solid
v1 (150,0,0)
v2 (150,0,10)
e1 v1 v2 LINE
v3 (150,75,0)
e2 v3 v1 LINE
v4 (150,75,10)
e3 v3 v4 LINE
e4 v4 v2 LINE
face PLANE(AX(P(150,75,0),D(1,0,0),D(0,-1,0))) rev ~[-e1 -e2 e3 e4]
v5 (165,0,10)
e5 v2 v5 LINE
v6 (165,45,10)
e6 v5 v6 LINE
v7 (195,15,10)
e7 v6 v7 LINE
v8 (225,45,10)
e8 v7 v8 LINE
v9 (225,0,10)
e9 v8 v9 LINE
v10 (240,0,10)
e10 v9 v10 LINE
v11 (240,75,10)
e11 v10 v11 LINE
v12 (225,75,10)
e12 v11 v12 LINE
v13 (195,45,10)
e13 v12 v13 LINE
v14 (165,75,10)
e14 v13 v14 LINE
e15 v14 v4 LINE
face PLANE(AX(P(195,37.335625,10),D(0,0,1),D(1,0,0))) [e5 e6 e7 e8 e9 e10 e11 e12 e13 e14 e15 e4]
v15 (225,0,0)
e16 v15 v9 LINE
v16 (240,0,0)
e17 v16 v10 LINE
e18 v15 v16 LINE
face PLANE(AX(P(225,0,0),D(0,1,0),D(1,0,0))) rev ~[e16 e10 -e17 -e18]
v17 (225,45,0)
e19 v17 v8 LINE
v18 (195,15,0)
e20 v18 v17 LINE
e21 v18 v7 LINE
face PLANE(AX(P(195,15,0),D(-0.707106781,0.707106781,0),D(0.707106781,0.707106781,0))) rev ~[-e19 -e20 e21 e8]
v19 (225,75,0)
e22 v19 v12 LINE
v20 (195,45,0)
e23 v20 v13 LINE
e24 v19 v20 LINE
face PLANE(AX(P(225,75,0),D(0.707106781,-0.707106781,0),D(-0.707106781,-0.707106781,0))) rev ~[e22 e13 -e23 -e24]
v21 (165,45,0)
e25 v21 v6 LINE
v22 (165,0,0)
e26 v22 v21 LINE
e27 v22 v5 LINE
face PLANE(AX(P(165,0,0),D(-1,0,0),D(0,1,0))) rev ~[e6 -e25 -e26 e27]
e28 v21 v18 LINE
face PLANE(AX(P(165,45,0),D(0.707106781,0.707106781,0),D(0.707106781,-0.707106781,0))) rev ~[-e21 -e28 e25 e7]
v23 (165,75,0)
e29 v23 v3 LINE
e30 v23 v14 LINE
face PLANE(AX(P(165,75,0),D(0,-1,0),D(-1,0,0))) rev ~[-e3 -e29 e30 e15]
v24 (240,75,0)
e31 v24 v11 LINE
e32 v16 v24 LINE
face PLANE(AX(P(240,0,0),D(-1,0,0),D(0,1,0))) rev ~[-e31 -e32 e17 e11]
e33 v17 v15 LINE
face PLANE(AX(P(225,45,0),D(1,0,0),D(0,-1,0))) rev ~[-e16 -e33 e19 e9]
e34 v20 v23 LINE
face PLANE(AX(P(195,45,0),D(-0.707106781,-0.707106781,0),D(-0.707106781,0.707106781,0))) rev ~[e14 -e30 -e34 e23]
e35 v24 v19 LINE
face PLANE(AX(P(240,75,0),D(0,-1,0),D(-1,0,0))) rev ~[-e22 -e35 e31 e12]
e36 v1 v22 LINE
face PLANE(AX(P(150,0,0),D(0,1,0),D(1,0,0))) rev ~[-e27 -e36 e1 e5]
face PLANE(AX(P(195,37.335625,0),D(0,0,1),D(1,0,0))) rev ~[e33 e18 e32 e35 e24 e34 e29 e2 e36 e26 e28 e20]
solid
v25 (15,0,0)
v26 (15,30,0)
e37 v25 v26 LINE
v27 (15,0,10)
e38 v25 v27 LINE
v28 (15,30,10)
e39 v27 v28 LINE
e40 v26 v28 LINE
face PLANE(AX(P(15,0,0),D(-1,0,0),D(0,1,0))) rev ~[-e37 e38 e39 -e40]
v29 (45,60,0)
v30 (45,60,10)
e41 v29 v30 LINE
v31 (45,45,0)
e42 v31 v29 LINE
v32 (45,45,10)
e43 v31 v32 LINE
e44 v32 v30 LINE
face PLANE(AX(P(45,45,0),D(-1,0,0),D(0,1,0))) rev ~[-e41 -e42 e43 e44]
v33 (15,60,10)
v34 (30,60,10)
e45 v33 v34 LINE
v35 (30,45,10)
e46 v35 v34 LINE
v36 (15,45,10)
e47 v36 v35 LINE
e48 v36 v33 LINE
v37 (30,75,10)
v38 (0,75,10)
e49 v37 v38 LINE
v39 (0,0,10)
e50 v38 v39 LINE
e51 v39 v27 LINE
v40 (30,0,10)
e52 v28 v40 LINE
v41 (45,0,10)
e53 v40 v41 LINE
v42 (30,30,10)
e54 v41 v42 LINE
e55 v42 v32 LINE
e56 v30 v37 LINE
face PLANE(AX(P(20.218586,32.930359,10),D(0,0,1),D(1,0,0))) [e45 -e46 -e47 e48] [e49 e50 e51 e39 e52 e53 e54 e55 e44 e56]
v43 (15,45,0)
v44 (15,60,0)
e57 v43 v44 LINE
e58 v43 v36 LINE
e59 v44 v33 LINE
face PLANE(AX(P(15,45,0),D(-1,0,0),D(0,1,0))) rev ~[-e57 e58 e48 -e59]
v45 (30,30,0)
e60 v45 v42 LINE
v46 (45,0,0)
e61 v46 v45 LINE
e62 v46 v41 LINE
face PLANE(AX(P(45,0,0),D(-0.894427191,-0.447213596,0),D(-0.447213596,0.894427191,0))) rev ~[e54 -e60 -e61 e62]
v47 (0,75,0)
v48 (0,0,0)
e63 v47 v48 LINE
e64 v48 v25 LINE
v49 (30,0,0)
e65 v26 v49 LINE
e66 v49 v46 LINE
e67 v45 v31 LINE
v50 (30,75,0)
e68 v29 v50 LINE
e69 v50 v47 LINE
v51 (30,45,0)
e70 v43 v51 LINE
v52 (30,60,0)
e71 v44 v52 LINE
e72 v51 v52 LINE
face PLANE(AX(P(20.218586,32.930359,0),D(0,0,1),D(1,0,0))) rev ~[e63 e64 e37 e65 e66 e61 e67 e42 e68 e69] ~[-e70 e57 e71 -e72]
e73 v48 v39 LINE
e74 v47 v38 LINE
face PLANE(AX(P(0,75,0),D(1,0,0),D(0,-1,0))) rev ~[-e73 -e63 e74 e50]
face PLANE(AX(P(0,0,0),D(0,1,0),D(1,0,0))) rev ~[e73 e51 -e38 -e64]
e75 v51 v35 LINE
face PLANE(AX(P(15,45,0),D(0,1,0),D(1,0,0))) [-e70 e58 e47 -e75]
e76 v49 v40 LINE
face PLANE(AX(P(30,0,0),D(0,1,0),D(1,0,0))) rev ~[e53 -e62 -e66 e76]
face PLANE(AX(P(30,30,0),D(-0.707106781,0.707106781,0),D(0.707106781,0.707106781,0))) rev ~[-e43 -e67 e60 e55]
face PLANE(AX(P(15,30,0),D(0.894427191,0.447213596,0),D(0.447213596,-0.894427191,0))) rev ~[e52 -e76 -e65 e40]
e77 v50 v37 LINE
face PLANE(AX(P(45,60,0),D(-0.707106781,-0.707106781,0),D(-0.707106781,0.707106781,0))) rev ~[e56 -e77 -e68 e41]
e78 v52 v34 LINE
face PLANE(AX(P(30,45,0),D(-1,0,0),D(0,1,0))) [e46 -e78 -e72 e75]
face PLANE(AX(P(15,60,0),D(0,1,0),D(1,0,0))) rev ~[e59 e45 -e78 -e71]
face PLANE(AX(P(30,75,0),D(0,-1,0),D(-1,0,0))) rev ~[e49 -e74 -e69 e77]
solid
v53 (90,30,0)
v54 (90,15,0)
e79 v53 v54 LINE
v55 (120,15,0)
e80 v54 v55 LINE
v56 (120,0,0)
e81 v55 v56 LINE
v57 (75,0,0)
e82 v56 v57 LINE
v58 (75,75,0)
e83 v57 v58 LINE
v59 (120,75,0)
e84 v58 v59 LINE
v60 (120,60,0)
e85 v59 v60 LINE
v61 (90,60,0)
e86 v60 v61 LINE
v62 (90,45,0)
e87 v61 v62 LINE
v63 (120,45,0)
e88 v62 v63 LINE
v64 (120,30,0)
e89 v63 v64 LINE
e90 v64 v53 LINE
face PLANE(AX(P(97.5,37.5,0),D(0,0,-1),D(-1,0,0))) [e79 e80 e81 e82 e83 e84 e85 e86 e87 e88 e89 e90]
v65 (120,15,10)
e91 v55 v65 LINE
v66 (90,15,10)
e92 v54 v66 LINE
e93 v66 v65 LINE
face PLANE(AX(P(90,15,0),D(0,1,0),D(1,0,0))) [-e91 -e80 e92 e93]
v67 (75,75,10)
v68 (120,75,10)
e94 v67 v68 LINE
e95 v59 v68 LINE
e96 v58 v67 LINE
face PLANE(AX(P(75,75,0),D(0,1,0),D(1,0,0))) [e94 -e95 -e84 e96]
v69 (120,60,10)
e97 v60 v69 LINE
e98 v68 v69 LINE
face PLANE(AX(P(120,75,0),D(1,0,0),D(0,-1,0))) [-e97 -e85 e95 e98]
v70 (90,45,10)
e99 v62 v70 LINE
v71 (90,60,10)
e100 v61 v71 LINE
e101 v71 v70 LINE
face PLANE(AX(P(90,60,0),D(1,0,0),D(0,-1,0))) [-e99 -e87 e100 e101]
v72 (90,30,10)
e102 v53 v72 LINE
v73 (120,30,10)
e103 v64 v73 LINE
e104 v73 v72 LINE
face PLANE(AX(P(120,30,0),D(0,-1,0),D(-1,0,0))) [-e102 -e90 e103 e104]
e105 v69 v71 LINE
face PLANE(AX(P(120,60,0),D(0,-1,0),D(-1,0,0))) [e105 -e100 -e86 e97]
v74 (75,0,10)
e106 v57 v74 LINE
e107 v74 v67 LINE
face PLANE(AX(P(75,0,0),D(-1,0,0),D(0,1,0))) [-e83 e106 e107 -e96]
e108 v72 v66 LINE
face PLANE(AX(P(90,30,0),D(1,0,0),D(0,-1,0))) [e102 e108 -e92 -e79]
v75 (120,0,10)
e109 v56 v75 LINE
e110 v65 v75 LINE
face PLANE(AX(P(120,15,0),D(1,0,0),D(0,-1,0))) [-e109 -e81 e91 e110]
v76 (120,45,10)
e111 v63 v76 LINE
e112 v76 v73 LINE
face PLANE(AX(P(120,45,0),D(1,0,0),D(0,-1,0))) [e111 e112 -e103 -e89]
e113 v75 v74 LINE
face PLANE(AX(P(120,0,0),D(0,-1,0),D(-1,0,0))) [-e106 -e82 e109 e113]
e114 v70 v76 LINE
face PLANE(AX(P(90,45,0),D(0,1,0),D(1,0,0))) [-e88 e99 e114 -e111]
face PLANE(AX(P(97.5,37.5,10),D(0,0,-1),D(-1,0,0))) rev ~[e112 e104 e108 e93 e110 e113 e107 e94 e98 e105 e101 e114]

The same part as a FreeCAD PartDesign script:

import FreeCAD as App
import Part
import Sketcher
Q = App.Units.Quantity


def add_polygon(sketch, points):
    """Adds a closed chain of lines whose ends are joined by coincident constraints."""
    first, n = sketch.GeometryCount, len(points)
    for a, b in zip(points, points[1:] + points[:1]):
        sketch.addGeometry(Part.LineSegment(App.Vector(*a, 0), App.Vector(*b, 0)), False)
    for i in range(n):
        sketch.addConstraint(Sketcher.Constraint("Coincident", first + i, 2, first + (i + 1) % n, 1))

doc = App.newDocument("Part")
body = doc.addObject("PartDesign::Body", "Body")

sketch1 = body.newObject("Sketcher::SketchObject", "Sketch")
sketch1.AttachmentSupport = (doc.getObject("XY_Plane"), [""])
sketch1.MapMode = "FlatFace"
add_polygon(sketch1, [(15, 0), (15, 30), (30, 0), (45, 0), (30, 30), (45, 45), (45, 60), (30, 75), (0, 75), (0, 0)])
add_polygon(sketch1, [(30, 45), (15, 45), (15, 60), (30, 60)])
sketch1.addConstraint(Sketcher.Constraint("Vertical", 0))
sketch1.addConstraint(Sketcher.Constraint("Horizontal", 2))
sketch1.addConstraint(Sketcher.Constraint("Vertical", 5))
sketch1.addConstraint(Sketcher.Constraint("Horizontal", 7))
sketch1.addConstraint(Sketcher.Constraint("Vertical", 8))
sketch1.addConstraint(Sketcher.Constraint("Horizontal", 9))
sketch1.addConstraint(Sketcher.Constraint("Horizontal", 10))
sketch1.addConstraint(Sketcher.Constraint("Vertical", 11))
sketch1.addConstraint(Sketcher.Constraint("Horizontal", 12))
sketch1.addConstraint(Sketcher.Constraint("Vertical", 13))
sketch1.addConstraint(Sketcher.Constraint("Coincident", 8, 2, -1, 1))
sketch1.addConstraint(Sketcher.Constraint("PointOnObject", 1, 2, -1))
sketch1.addConstraint(Sketcher.Constraint("Parallel", 1, 3))
sketch1.addConstraint(Sketcher.Constraint("Perpendicular", 4, 6))
sketch1.addConstraint(Sketcher.Constraint("Horizontal", 0, 2, 3, 2))
sketch1.addConstraint(Sketcher.Constraint("Horizontal", 4, 2, 10, 2))
sketch1.addConstraint(Sketcher.Constraint("Horizontal", 5, 2, 11, 2))
sketch1.addConstraint(Sketcher.Constraint("Vertical", 1, 2, 3, 2))
sketch1.addConstraint(Sketcher.Constraint("Vertical", 2, 2, 4, 2))
sketch1.addConstraint(Sketcher.Constraint("Vertical", 3, 2, 6, 2))
sketch1.addConstraint(Sketcher.Constraint("Vertical", 9, 2, 10, 2))
sketch1.addConstraint(Sketcher.Constraint("Vertical", 6, 2, 12, 2))
sketch1.addConstraint(Sketcher.Constraint("Equal", 2, 9))
sketch1.addConstraint(Sketcher.Constraint("Equal", 7, 0))
sketch1.addConstraint(Sketcher.Constraint("Equal", 12, 5))
sketch1.addConstraint(Sketcher.Constraint("Equal", 4, 6))
sketch1.addConstraint(Sketcher.Constraint("DistanceX", 2, 1, 2, 2, Q("15 mm")))
pad1 = body.newObject("PartDesign::Pad", "Pad")
pad1.Profile = sketch1
pad1.Length = 10
body2 = doc.addObject("PartDesign::Body", "Body001")

sketch2 = body2.newObject("Sketcher::SketchObject", "Sketch001")
sketch2.AttachmentSupport = (doc.getObject("XY_Plane001"), [""])
sketch2.MapMode = "FlatFace"
add_polygon(sketch2, [(240, 0), (240, 75), (225, 75), (195, 45), (165, 75), (150, 75), (150, 0), (165, 0), (165, 45), (195, 15), (225, 45), (225, 0)])
sketch2.addConstraint(Sketcher.Constraint("Vertical", 0))
sketch2.addConstraint(Sketcher.Constraint("Horizontal", 1))
sketch2.addConstraint(Sketcher.Constraint("Horizontal", 4))
sketch2.addConstraint(Sketcher.Constraint("Vertical", 5))
sketch2.addConstraint(Sketcher.Constraint("Horizontal", 6))
sketch2.addConstraint(Sketcher.Constraint("Vertical", 7))
sketch2.addConstraint(Sketcher.Constraint("Vertical", 10))
sketch2.addConstraint(Sketcher.Constraint("Horizontal", 11))
sketch2.addConstraint(Sketcher.Constraint("PointOnObject", 5, 2, -1))
sketch2.addConstraint(Sketcher.Constraint("PointOnObject", 10, 2, -1))
sketch2.addConstraint(Sketcher.Constraint("Perpendicular", 2, 3))
sketch2.addConstraint(Sketcher.Constraint("Parallel", 3, 8))
sketch2.addConstraint(Sketcher.Constraint("Perpendicular", 8, 9))
sketch2.addConstraint(Sketcher.Constraint("Horizontal", 1, 2, 3, 2))
sketch2.addConstraint(Sketcher.Constraint("Horizontal", 2, 2, 7, 2))
sketch2.addConstraint(Sketcher.Constraint("Horizontal", 7, 2, 9, 2))
sketch2.addConstraint(Sketcher.Constraint("Vertical", 3, 2, 6, 2))
sketch2.addConstraint(Sketcher.Constraint("Vertical", 2, 2, 8, 2))
sketch2.addConstraint(Sketcher.Constraint("Equal", 1, 4))
sketch2.addConstraint(Sketcher.Constraint("Equal", 2, 3))
sketch2.addConstraint(Sketcher.Constraint("DistanceX", 1, 2, 1, 1, Q("15 mm")))
sketch2.addConstraint(Sketcher.Constraint("DistanceY", 0, 1, 0, 2, Q("75 mm")))
sketch2.addConstraint(Sketcher.Constraint("DistanceY", 7, 1, 7, 2, Q("45 mm")))
sketch2.addConstraint(Sketcher.Constraint("DistanceX", -1, 1, 0, 2, Q("240 mm")))
pad2 = body2.newObject("PartDesign::Pad", "Pad001")
pad2.Profile = sketch2
pad2.Length = 10
body3 = doc.addObject("PartDesign::Body", "Body002")

sketch3 = body3.newObject("Sketcher::SketchObject", "Sketch002")
sketch3.AttachmentSupport = (doc.getObject("XY_Plane002"), [""])
sketch3.MapMode = "FlatFace"
add_polygon(sketch3, [(75, 75), (75, 0), (120, 0), (120, 15), (90, 15), (90, 30), (120, 30), (120, 45), (90, 45), (90, 60), (120, 60), (120, 75)])
sketch3.addConstraint(Sketcher.Constraint("Vertical", 0))
sketch3.addConstraint(Sketcher.Constraint("Horizontal", 1))
sketch3.addConstraint(Sketcher.Constraint("Vertical", 2))
sketch3.addConstraint(Sketcher.Constraint("Horizontal", 3))
sketch3.addConstraint(Sketcher.Constraint("Vertical", 4))
sketch3.addConstraint(Sketcher.Constraint("Horizontal", 5))
sketch3.addConstraint(Sketcher.Constraint("Vertical", 6))
sketch3.addConstraint(Sketcher.Constraint("Horizontal", 7))
sketch3.addConstraint(Sketcher.Constraint("Vertical", 8))
sketch3.addConstraint(Sketcher.Constraint("Horizontal", 9))
sketch3.addConstraint(Sketcher.Constraint("Vertical", 10))
sketch3.addConstraint(Sketcher.Constraint("Horizontal", 11))
sketch3.addConstraint(Sketcher.Constraint("PointOnObject", 0, 2, -1))
sketch3.addConstraint(Sketcher.Constraint("Vertical", 2, 2, 5, 2))
sketch3.addConstraint(Sketcher.Constraint("Vertical", 4, 2, 7, 2))
sketch3.addConstraint(Sketcher.Constraint("Vertical", 6, 2, 9, 2))
sketch3.addConstraint(Sketcher.Constraint("Equal", 2, 4))
sketch3.addConstraint(Sketcher.Constraint("Equal", 4, 6))
sketch3.addConstraint(Sketcher.Constraint("Equal", 6, 8))
sketch3.addConstraint(Sketcher.Constraint("Equal", 8, 10))
sketch3.addConstraint(Sketcher.Constraint("DistanceX", 1, 1, 1, 2, Q("45 mm")))
sketch3.addConstraint(Sketcher.Constraint("DistanceX", 3, 2, 3, 1, Q("30 mm")))
sketch3.addConstraint(Sketcher.Constraint("DistanceY", 0, 2, 0, 1, Q("75 mm")))
sketch3.addConstraint(Sketcher.Constraint("DistanceX", -1, 1, 0, 2, Q("75 mm")))
pad3 = body3.newObject("PartDesign::Pad", "Pad002")
pad3.Profile = sketch3
pad3.Length = 10

doc.recompute()
